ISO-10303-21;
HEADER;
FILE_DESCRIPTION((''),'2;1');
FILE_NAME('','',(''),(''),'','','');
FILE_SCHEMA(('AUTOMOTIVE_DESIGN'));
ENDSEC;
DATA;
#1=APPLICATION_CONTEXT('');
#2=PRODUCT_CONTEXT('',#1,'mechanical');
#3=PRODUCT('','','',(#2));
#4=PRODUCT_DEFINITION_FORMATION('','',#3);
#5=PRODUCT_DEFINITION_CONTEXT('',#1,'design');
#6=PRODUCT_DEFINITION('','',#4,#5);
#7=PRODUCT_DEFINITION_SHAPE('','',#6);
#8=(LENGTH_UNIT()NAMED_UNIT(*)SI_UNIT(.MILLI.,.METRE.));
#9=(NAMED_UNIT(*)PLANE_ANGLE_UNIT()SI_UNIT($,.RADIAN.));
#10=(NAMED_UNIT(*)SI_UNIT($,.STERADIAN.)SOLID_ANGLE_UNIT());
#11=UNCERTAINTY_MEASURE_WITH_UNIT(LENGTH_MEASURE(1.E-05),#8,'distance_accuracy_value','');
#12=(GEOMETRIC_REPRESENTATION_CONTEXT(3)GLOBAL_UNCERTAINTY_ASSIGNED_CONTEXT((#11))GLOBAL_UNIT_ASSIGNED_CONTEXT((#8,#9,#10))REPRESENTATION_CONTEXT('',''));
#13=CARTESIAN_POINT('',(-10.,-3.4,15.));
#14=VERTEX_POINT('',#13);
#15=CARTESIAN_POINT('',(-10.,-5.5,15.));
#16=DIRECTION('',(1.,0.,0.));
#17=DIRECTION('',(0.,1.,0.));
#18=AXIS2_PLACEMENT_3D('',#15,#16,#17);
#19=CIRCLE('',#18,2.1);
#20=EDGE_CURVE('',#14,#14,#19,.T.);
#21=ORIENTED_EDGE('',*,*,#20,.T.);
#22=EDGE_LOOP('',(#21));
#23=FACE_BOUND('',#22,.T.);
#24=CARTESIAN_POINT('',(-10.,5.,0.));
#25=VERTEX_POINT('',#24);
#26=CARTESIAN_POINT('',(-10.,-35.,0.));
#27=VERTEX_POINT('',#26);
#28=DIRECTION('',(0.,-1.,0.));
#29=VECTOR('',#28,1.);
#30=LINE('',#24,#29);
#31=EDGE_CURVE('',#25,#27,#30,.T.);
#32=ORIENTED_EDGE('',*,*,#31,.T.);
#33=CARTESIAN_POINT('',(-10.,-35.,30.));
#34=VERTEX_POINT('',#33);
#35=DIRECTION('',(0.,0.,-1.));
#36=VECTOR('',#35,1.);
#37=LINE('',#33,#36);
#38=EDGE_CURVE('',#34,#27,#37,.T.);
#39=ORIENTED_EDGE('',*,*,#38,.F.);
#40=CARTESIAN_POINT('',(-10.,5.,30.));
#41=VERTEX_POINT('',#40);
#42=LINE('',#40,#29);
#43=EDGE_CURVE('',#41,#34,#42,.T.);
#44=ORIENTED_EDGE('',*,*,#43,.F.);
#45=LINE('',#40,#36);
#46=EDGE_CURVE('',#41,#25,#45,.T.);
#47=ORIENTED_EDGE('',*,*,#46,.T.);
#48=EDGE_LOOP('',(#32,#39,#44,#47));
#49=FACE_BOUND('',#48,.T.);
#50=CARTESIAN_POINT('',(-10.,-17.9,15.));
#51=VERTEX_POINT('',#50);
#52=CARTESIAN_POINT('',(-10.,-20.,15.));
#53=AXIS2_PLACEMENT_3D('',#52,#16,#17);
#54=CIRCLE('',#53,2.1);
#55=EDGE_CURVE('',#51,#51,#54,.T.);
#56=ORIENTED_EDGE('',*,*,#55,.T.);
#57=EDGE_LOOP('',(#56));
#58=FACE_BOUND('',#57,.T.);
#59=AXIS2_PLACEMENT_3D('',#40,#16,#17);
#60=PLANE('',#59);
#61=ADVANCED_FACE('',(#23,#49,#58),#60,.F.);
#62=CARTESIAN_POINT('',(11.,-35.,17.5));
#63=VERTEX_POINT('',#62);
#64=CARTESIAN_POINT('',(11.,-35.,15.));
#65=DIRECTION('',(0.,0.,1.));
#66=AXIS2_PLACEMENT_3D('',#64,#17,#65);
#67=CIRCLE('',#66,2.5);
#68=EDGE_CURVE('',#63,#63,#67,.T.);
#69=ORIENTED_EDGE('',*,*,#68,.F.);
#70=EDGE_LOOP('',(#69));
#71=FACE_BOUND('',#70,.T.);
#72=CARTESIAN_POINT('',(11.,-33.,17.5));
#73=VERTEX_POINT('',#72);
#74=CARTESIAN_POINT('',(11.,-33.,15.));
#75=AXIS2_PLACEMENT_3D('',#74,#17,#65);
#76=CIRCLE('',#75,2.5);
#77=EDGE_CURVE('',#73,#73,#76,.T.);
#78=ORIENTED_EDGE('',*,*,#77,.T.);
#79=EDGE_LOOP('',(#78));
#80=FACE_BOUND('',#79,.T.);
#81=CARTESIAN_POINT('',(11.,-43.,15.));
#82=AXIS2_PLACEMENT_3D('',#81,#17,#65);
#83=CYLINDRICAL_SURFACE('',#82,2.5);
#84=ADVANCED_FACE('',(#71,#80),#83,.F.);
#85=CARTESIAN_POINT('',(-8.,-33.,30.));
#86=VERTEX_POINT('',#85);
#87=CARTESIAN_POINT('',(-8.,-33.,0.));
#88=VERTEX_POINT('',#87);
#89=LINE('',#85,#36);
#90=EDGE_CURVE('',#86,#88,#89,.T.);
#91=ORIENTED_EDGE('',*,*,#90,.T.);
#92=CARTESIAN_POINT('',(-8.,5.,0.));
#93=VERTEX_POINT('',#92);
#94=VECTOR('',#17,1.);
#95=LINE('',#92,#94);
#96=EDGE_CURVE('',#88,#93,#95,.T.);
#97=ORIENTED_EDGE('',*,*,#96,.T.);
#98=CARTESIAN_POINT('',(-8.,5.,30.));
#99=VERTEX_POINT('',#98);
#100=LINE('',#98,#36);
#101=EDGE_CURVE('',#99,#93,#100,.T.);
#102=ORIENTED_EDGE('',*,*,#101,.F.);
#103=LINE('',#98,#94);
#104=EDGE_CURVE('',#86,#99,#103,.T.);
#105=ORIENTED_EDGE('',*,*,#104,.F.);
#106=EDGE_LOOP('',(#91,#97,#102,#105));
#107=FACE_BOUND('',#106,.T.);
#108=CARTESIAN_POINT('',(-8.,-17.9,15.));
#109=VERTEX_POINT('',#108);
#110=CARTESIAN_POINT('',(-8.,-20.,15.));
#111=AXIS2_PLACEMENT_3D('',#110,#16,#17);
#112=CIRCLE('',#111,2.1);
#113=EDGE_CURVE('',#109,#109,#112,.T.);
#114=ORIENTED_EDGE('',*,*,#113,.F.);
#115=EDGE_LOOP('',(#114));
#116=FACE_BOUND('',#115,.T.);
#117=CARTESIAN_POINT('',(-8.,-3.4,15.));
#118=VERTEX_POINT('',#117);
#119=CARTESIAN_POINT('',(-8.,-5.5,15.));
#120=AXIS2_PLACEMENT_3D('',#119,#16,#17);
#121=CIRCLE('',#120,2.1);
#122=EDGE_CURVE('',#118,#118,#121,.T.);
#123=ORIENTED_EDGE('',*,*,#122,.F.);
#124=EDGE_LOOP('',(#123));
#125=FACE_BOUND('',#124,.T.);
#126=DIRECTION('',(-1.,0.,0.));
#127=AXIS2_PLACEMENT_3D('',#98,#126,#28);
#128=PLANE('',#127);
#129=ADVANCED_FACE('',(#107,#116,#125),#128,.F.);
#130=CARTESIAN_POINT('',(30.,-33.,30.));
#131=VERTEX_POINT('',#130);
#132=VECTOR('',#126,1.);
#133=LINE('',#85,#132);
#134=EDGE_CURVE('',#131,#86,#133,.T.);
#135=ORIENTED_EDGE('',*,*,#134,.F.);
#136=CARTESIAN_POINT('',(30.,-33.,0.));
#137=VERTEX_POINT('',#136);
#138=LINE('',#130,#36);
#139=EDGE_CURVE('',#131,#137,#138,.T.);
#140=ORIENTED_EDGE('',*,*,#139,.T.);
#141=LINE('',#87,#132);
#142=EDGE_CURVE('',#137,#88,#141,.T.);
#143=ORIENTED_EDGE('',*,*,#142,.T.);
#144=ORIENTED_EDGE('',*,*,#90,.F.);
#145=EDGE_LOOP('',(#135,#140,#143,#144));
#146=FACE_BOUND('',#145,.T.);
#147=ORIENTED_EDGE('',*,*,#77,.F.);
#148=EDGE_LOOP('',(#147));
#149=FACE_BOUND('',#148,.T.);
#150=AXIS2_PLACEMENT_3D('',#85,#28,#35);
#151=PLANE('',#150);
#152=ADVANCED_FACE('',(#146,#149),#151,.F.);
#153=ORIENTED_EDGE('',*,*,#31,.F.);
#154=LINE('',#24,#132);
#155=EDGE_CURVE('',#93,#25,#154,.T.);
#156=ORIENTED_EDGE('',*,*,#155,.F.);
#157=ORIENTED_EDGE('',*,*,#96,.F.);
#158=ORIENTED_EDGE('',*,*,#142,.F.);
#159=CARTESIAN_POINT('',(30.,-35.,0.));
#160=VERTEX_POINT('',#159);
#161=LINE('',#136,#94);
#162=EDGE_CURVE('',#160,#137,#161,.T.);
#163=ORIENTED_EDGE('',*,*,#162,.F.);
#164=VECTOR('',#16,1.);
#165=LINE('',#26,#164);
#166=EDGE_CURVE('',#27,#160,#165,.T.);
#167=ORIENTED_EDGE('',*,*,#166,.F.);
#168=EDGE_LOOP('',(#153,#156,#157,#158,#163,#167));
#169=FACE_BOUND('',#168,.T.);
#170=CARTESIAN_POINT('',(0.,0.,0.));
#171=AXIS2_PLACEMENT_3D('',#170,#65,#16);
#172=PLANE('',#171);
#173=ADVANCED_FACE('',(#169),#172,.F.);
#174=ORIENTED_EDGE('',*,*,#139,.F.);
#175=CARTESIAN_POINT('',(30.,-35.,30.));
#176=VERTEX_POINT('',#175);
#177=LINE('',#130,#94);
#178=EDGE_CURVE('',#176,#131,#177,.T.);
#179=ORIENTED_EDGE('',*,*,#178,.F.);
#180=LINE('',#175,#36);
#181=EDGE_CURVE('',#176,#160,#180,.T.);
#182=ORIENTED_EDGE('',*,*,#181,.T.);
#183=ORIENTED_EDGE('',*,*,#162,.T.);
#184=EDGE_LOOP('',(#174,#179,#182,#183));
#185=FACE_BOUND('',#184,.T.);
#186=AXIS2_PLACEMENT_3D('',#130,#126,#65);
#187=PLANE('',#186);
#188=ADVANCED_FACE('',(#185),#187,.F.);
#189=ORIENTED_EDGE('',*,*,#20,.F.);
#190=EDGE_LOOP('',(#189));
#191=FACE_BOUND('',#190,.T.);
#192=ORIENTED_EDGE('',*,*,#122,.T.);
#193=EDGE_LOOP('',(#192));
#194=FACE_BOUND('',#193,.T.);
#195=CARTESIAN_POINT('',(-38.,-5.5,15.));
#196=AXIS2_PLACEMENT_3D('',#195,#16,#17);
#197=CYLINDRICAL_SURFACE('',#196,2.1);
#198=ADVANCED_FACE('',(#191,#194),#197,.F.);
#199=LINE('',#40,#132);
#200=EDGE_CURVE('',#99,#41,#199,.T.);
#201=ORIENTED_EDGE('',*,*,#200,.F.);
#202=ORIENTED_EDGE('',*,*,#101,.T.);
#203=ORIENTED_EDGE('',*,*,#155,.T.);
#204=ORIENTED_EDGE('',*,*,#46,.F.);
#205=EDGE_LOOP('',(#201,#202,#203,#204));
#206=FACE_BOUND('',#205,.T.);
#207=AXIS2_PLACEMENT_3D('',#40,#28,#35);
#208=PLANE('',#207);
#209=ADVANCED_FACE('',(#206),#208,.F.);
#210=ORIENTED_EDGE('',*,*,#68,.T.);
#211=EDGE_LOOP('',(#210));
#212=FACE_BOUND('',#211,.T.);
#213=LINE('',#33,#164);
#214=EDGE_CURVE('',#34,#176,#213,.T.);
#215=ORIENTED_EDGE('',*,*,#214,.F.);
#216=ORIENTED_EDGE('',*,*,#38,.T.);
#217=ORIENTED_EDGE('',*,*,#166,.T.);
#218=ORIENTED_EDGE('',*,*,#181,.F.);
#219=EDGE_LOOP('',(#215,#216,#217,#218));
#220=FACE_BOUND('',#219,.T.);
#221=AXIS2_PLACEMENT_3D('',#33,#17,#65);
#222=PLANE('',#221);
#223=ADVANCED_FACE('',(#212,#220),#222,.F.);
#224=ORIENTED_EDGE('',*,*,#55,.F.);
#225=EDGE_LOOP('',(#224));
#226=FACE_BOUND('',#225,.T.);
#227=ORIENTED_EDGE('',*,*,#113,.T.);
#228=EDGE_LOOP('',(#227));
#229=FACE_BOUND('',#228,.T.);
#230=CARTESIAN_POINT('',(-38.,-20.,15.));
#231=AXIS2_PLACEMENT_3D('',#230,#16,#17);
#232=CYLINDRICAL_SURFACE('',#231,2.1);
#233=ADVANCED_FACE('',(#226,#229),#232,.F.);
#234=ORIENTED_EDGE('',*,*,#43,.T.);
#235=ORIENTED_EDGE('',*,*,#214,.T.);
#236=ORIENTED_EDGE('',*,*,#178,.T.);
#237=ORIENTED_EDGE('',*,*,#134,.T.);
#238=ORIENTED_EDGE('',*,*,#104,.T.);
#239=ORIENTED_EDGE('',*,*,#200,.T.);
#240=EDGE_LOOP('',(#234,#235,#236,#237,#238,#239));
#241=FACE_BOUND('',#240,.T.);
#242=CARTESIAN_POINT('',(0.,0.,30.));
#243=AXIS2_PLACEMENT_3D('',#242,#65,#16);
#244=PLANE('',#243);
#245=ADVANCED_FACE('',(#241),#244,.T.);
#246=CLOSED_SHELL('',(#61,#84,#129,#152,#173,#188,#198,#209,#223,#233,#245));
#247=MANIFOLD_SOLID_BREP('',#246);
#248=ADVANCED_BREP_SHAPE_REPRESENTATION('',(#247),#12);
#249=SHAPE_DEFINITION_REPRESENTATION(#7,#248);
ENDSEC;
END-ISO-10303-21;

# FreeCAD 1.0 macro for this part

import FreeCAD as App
import Part
import Sketcher
from FreeCAD import Vector
Q = App.Units.Quantity

doc = App.newDocument("Part")
body = doc.addObject("PartDesign::Body", "Body")

sketch1 = doc.addObject("Sketcher::SketchObject", "Sketch")
body.addObject(sketch1)
sketch1.AttachmentSupport = (doc.XY_Plane, [""])
sketch1.MapMode = "FlatFace"
sketch1.addGeometry(Part.LineSegment(Vector(-8, -33, 0), Vector(-8, 5, 0)), False)
sketch1.addGeometry(Part.LineSegment(Vector(-8, 5, 0), Vector(-10, 5, 0)), False)
sketch1.addGeometry(Part.LineSegment(Vector(-10, 5, 0), Vector(-10, -35, 0)), False)
sketch1.addGeometry(Part.LineSegment(Vector(-10, -35, 0), Vector(30, -35, 0)), False)
sketch1.addGeometry(Part.LineSegment(Vector(30, -35, 0), Vector(30, -33, 0)), False)
sketch1.addGeometry(Part.LineSegment(Vector(30, -33, 0), Vector(-8, -33, 0)), False)
sketch1.addConstraint(Sketcher.Constraint("Coincident", 0, 2, 1, 1))
sketch1.addConstraint(Sketcher.Constraint("Coincident", 1, 2, 2, 1))
sketch1.addConstraint(Sketcher.Constraint("Coincident", 2, 2, 3, 1))
sketch1.addConstraint(Sketcher.Constraint("Coincident", 3, 2, 4, 1))
sketch1.addConstraint(Sketcher.Constraint("Coincident", 4, 2, 5, 1))
sketch1.addConstraint(Sketcher.Constraint("Coincident", 5, 2, 0, 1))
sketch1.addConstraint(Sketcher.Constraint("Vertical", 0))
sketch1.addConstraint(Sketcher.Constraint("Horizontal", 1))
sketch1.addConstraint(Sketcher.Constraint("Vertical", 2))
sketch1.addConstraint(Sketcher.Constraint("Horizontal", 3))
sketch1.addConstraint(Sketcher.Constraint("Vertical", 4))
sketch1.addConstraint(Sketcher.Constraint("Horizontal", 5))
sketch1.addConstraint(Sketcher.Constraint("Equal", 5, 0))
sketch1.addConstraint(Sketcher.Constraint("Equal", 3, 2))
sketch1.addConstraint(Sketcher.Constraint("DistanceX", 1, 2, 1, 1, Q("2 mm")))
sketch1.addConstraint(Sketcher.Constraint("DistanceX", 3, 1, 3, 2, Q("40 mm")))
sketch1.addConstraint(Sketcher.Constraint("DistanceX", 0, 2, -1, 1, Q("8 mm")))
sketch1.addConstraint(Sketcher.Constraint("DistanceY", -1, 1, 0, 2, Q("5 mm")))
pad1 = doc.addObject("PartDesign::Pad", "Pad")
body.addObject(pad1)
pad1.Profile = sketch1
pad1.Length = 30

sketch2 = doc.addObject("Sketcher::SketchObject", "Sketch001")
body.addObject(sketch2)
sketch2.AttachmentSupport = (doc.YZ_Plane, [""])
sketch2.MapMode = "FlatFace"
sketch2.AttachmentOffset = App.Placement(Vector(0, 0, -8), App.Rotation())
sketch2.addGeometry(Part.Circle(Vector(-5.5, 15, 0), Vector(0, 0, 1), 2.1), False)
sketch2.addGeometry(Part.Circle(Vector(-20, 15, 0), Vector(0, 0, 1), 2.1), False)
sketch2.addConstraint(Sketcher.Constraint("Equal", 0, 1))
sketch2.addConstraint(Sketcher.Constraint("Horizontal", 0, 3, 1, 3))
sketch2.addConstraint(Sketcher.Constraint("Diameter", 0, Q("4.2 mm")))
sketch2.addConstraint(Sketcher.Constraint("DistanceY", -1, 1, 0, 3, Q("15 mm")))
sketch2.addConstraint(Sketcher.Constraint("DistanceX", 1, 3, -1, 1, Q("20 mm")))
sketch2.addConstraint(Sketcher.Constraint("DistanceX", 0, 3, -1, 1, Q("5.5 mm")))
pocket1 = doc.addObject("PartDesign::Pocket", "Pocket")
body.addObject(pocket1)
pocket1.Profile = sketch2
pocket1.Length = 30

sketch3 = doc.addObject("Sketcher::SketchObject", "Sketch002")
body.addObject(sketch3)
sketch3.AttachmentSupport = (doc.XZ_Plane, [""])
sketch3.MapMode = "FlatFace"
sketch3.AttachmentOffset = App.Placement(Vector(0, 0, 33), App.Rotation())
sketch3.addGeometry(Part.Circle(Vector(11, 15, 0), Vector(0, 0, 1), 2.5), False)
sketch3.addConstraint(Sketcher.Constraint("Diameter", 0, Q("5 mm")))
sketch3.addConstraint(Sketcher.Constraint("DistanceX", -1, 1, 0, 3, Q("11 mm")))
sketch3.addConstraint(Sketcher.Constraint("DistanceY", -1, 1, 0, 3, Q("15 mm")))
pocket2 = doc.addObject("PartDesign::Pocket", "Pocket001")
body.addObject(pocket2)
pocket2.Profile = sketch3
pocket2.Length = 10
pocket2.Reversed = True

doc.recompute()
